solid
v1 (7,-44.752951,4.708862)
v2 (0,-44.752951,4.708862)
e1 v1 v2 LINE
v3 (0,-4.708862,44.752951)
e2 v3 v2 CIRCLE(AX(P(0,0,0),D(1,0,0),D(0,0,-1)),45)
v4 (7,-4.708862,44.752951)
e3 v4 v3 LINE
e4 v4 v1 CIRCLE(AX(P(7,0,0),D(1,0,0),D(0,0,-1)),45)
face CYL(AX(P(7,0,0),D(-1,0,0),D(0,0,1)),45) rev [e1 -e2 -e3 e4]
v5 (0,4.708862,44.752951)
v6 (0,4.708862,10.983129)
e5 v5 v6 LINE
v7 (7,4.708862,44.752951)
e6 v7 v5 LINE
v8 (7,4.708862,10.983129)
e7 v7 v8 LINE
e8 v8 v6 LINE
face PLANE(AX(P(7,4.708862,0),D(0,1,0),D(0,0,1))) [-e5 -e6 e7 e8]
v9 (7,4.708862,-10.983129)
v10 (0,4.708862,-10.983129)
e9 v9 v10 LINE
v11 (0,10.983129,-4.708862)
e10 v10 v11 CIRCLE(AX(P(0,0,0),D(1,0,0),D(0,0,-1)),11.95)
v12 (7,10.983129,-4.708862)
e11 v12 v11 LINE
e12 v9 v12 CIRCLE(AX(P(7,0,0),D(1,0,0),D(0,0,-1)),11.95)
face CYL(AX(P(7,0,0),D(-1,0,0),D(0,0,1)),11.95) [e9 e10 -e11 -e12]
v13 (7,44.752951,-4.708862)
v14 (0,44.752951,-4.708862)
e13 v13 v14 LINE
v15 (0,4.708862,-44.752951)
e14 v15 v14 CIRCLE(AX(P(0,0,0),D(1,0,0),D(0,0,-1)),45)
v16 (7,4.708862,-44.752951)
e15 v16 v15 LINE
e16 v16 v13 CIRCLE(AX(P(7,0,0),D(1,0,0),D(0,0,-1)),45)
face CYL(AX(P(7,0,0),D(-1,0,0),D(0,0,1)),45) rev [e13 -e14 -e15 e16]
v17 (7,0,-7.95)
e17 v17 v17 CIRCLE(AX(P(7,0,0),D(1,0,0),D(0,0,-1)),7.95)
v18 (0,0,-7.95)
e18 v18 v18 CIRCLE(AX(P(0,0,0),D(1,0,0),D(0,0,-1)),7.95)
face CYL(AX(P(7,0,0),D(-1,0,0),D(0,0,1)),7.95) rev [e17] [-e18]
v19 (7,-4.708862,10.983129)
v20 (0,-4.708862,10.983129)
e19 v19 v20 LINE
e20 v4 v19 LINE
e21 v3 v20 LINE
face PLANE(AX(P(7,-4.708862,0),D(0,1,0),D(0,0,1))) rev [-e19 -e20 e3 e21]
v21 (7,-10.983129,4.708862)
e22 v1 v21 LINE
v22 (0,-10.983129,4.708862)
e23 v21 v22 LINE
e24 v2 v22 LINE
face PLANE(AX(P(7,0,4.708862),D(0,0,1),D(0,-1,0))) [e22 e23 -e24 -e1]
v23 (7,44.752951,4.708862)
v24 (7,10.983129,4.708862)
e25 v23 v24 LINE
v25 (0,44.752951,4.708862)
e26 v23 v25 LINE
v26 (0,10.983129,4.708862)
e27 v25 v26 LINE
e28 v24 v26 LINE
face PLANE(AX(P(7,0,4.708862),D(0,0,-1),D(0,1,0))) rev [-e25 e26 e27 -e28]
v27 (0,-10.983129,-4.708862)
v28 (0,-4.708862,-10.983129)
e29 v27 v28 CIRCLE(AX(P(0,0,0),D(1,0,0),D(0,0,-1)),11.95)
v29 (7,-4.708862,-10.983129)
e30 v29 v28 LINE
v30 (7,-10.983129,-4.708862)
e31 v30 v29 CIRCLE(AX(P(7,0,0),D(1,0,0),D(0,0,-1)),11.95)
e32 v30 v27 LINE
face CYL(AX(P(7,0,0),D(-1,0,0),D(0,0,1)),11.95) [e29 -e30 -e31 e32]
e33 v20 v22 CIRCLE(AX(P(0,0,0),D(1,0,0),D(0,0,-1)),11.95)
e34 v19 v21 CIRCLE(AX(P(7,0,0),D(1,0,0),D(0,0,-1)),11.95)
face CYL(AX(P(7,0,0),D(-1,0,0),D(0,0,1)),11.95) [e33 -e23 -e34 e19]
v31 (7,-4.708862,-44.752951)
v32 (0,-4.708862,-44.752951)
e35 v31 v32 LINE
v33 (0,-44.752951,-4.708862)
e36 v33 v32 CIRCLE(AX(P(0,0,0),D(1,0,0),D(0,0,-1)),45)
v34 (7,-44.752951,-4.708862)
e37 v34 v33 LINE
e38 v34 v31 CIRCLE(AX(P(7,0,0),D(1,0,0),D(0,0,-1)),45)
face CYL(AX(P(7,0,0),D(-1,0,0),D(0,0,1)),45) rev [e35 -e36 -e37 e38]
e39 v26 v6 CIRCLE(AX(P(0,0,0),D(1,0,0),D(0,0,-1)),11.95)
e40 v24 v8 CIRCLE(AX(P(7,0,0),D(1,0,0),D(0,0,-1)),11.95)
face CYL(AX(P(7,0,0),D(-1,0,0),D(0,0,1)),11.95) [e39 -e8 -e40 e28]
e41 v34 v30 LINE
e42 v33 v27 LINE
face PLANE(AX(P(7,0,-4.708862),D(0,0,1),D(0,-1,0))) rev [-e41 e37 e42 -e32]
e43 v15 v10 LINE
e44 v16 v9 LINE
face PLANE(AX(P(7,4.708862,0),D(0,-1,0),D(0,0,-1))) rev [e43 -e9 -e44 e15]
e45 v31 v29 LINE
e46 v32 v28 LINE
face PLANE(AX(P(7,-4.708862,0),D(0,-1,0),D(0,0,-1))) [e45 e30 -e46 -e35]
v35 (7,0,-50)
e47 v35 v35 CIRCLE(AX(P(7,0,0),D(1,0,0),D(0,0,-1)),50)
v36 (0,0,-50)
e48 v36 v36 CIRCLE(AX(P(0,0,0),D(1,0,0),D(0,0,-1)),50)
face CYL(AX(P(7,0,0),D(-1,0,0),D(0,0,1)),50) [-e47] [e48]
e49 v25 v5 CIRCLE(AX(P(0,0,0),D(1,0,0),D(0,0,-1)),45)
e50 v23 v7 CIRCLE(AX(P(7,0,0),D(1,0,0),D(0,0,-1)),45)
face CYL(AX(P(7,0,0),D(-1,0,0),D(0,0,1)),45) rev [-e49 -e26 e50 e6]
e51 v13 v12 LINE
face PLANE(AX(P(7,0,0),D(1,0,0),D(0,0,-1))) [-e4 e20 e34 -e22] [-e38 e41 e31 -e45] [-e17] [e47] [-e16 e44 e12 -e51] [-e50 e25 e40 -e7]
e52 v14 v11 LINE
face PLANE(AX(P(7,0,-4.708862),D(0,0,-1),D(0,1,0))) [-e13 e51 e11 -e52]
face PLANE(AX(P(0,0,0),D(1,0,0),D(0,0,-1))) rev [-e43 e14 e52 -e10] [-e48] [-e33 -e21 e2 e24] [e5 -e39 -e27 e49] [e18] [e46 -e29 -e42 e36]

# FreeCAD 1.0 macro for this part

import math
import FreeCAD as App
import Part
import Sketcher

V = App.Vector

doc = App.newDocument("Part")
body = doc.addObject("PartDesign::Body", "Body")

# Sketch on YZ plane
sketch1 = doc.addObject("Sketcher::SketchObject", "Sketch")
body.addObject(sketch1)
sketch1.AttachmentSupport = (doc.YZ_Plane, [""])
sketch1.MapMode = "FlatFace"
sketch1.addGeometry(Part.Circle(V(0, 0, 0), V(0, 0, 1), 50), False)
sketch1.addGeometry(Part.ArcOfCircle(Part.Circle(V(0, 0, 0), V(0, 0, 1), 11.9), math.radians(113), math.radians(157)), False)
sketch1.addGeometry(Part.LineSegment(V(-11, 4.7, 0), V(-44.8, 4.7, 0)), False)
sketch1.addGeometry(Part.ArcOfCircle(Part.Circle(V(0, 0, 0), V(0, 0, 1), 45), math.radians(96), math.radians(174)), False)
sketch1.addGeometry(Part.LineSegment(V(-4.7, 44.8, 0), V(-4.7, 11, 0)), False)
sketch1.addGeometry(Part.ArcOfCircle(Part.Circle(V(0, 0, 0), V(0, 0, 1), 11.9), math.radians(-157), math.radians(-113)), False)
sketch1.addGeometry(Part.LineSegment(V(-4.7, -11, 0), V(-4.7, -44.8, 0)), False)
sketch1.addGeometry(Part.ArcOfCircle(Part.Circle(V(0, 0, 0), V(0, 0, 1), 45), math.radians(-174), math.radians(-96)), False)
sketch1.addGeometry(Part.LineSegment(V(-44.8, -4.7, 0), V(-11, -4.7, 0)), False)
sketch1.addGeometry(Part.LineSegment(V(4.7, 11, 0), V(4.7, 44.8, 0)), False)
sketch1.addGeometry(Part.ArcOfCircle(Part.Circle(V(0, 0, 0), V(0, 0, 1), 45), math.radians(6), math.radians(84)), False)
sketch1.addGeometry(Part.LineSegment(V(44.8, 4.7, 0), V(11, 4.7, 0)), False)
sketch1.addGeometry(Part.ArcOfCircle(Part.Circle(V(0, 0, 0), V(0, 0, 1), 11.9), math.radians(23), math.radians(67)), False)
sketch1.addGeometry(Part.ArcOfCircle(Part.Circle(V(0, 0, 0), V(0, 0, 1), 7.9), math.radians(12), math.radians(24)), False)
sketch1.addGeometry(Part.ArcOfCircle(Part.Circle(V(0, 0, 0), V(0, 0, 1), 8), math.radians(0), math.radians(12)), False)
sketch1.addGeometry(Part.ArcOfCircle(Part.Circle(V(0, 0, 0), V(0, 0, 1), 8), math.radians(-12), math.radians(0)), False)
sketch1.addGeometry(Part.ArcOfCircle(Part.Circle(V(0, 0, 0), V(0, 0, 1), 7.9), math.radians(-24), math.radians(-12)), False)
sketch1.addGeometry(Part.ArcOfCircle(Part.Circle(V(0, 0, 0), V(0, 0, 1), 7.9), math.radians(-36), math.radians(-24)), False)
sketch1.addGeometry(Part.ArcOfCircle(Part.Circle(V(0, 0, 0), V(0, 0, 1), 7.9), math.radians(-48), math.radians(-36)), False)
sketch1.addGeometry(Part.ArcOfCircle(Part.Circle(V(0, 0, 0), V(0, 0, 1), 8), math.radians(-60), math.radians(-48)), False)
sketch1.addGeometry(Part.ArcOfCircle(Part.Circle(V(0, 0, 0), V(0, 0, 1), 8), math.radians(-72), math.radians(-60)), False)
sketch1.addGeometry(Part.ArcOfCircle(Part.Circle(V(0, 0, 0), V(0, 0, 1), 7.9), math.radians(-84), math.radians(-72)), False)
sketch1.addGeometry(Part.ArcOfCircle(Part.Circle(V(0, 0, 0), V(0, 0, 1), 8), math.radians(-90), math.radians(-84)), False)
sketch1.addGeometry(Part.ArcOfCircle(Part.Circle(V(0, 0, 0), V(0, 0, 1), 8), math.radians(-96), math.radians(-90)), False)
sketch1.addGeometry(Part.ArcOfCircle(Part.Circle(V(0, 0, 0), V(0, 0, 1), 7.9), math.radians(-108), math.radians(-96)), False)
sketch1.addGeometry(Part.ArcOfCircle(Part.Circle(V(0, 0, 0), V(0, 0, 1), 8), math.radians(-120), math.radians(-108)), False)
sketch1.addGeometry(Part.ArcOfCircle(Part.Circle(V(0, 0, 0), V(0, 0, 1), 8), math.radians(-132), math.radians(-120)), False)
sketch1.addGeometry(Part.ArcOfCircle(Part.Circle(V(0, 0, 0), V(0, 0, 1), 7.9), math.radians(-144), math.radians(-132)), False)
sketch1.addGeometry(Part.ArcOfCircle(Part.Circle(V(0, 0, 0), V(0, 0, 1), 7.9), math.radians(-156), math.radians(-144)), False)
sketch1.addGeometry(Part.ArcOfCircle(Part.Circle(V(0, 0, 0), V(0, 0, 1), 7.9), math.radians(-168), math.radians(-156)), False)
sketch1.addGeometry(Part.ArcOfCircle(Part.Circle(V(0, 0, 0), V(0, 0, 1), 8), math.radians(-180), math.radians(-168)), False)
sketch1.addGeometry(Part.ArcOfCircle(Part.Circle(V(0, 0, 0), V(0, 0, 1), 8), math.radians(168), math.radians(180)), False)
sketch1.addGeometry(Part.ArcOfCircle(Part.Circle(V(0, 0, 0), V(0, 0, 1), 7.9), math.radians(156), math.radians(168)), False)
sketch1.addGeometry(Part.ArcOfCircle(Part.Circle(V(0, 0, 0), V(0, 0, 1), 7.9), math.radians(144), math.radians(156)), False)
sketch1.addGeometry(Part.ArcOfCircle(Part.Circle(V(0, 0, 0), V(0, 0, 1), 7.9), math.radians(132), math.radians(144)), False)
sketch1.addGeometry(Part.ArcOfCircle(Part.Circle(V(0, 0, 0), V(0, 0, 1), 8), math.radians(120), math.radians(132)), False)
sketch1.addGeometry(Part.ArcOfCircle(Part.Circle(V(0, 0, 0), V(0, 0, 1), 8), math.radians(108), math.radians(120)), False)
sketch1.addGeometry(Part.ArcOfCircle(Part.Circle(V(0, 0, 0), V(0, 0, 1), 7.9), math.radians(96), math.radians(108)), False)
sketch1.addGeometry(Part.ArcOfCircle(Part.Circle(V(0, 0, 0), V(0, 0, 1), 7.9), math.radians(84), math.radians(96)), False)
sketch1.addGeometry(Part.ArcOfCircle(Part.Circle(V(0, 0, 0), V(0, 0, 1), 7.9), math.radians(72), math.radians(84)), False)
sketch1.addGeometry(Part.ArcOfCircle(Part.Circle(V(0, 0, 0), V(0, 0, 1), 8), math.radians(60), math.radians(72)), False)
sketch1.addGeometry(Part.ArcOfCircle(Part.Circle(V(0, 0, 0), V(0, 0, 1), 8), math.radians(48), math.radians(60)), False)
sketch1.addGeometry(Part.ArcOfCircle(Part.Circle(V(0, 0, 0), V(0, 0, 1), 7.9), math.radians(36), math.radians(48)), False)
sketch1.addGeometry(Part.ArcOfCircle(Part.Circle(V(0, 0, 0), V(0, 0, 1), 7.9), math.radians(24), math.radians(36)), False)
sketch1.addGeometry(Part.ArcOfCircle(Part.Circle(V(0, 0, 0), V(0, 0, 1), 11.9), math.radians(-67), math.radians(-23)), False)
sketch1.addGeometry(Part.LineSegment(V(11, -4.7, 0), V(44.8, -4.7, 0)), False)
sketch1.addGeometry(Part.ArcOfCircle(Part.Circle(V(0, 0, 0), V(0, 0, 1), 45), math.radians(-84), math.radians(-6)), False)
sketch1.addGeometry(Part.LineSegment(V(4.7, -44.8, 0), V(4.7, -11, 0)), False)
sketch1.addConstraint(Sketcher.Constraint("Coincident", 1, 2, 2, 1))
sketch1.addConstraint(Sketcher.Constraint("Coincident", 2, 2, 3, 2))
sketch1.addConstraint(Sketcher.Constraint("Coincident", 3, 1, 4, 1))
sketch1.addConstraint(Sketcher.Constraint("Coincident", 4, 2, 1, 1))
sketch1.addConstraint(Sketcher.Constraint("Coincident", 5, 2, 6, 1))
sketch1.addConstraint(Sketcher.Constraint("Coincident", 6, 2, 7, 2))
sketch1.addConstraint(Sketcher.Constraint("Coincident", 7, 1, 8, 1))
sketch1.addConstraint(Sketcher.Constraint("Coincident", 8, 2, 5, 1))
sketch1.addConstraint(Sketcher.Constraint("Coincident", 9, 2, 10, 2))
sketch1.addConstraint(Sketcher.Constraint("Coincident", 10, 1, 11, 1))
sketch1.addConstraint(Sketcher.Constraint("Coincident", 11, 2, 12, 1))
sketch1.addConstraint(Sketcher.Constraint("Coincident", 12, 2, 9, 1))
sketch1.addConstraint(Sketcher.Constraint("Tangent", 13, 1, 14, 2))
sketch1.addConstraint(Sketcher.Constraint("Tangent", 14, 1, 15, 2))
sketch1.addConstraint(Sketcher.Constraint("Tangent", 15, 1, 16, 2))
sketch1.addConstraint(Sketcher.Constraint("Tangent", 16, 1, 17, 2))
sketch1.addConstraint(Sketcher.Constraint("Tangent", 17, 1, 18, 2))
sketch1.addConstraint(Sketcher.Constraint("Tangent", 18, 1, 19, 2))
sketch1.addConstraint(Sketcher.Constraint("Tangent", 19, 1, 20, 2))
sketch1.addConstraint(Sketcher.Constraint("Tangent", 20, 1, 21, 2))
sketch1.addConstraint(Sketcher.Constraint("Tangent", 21, 1, 22, 2))
sketch1.addConstraint(Sketcher.Constraint("Tangent", 22, 1, 23, 2))
sketch1.addConstraint(Sketcher.Constraint("Tangent", 23, 1, 24, 2))
sketch1.addConstraint(Sketcher.Constraint("Tangent", 24, 1, 25, 2))
sketch1.addConstraint(Sketcher.Constraint("Tangent", 25, 1, 26, 2))
sketch1.addConstraint(Sketcher.Constraint("Tangent", 26, 1, 27, 2))
sketch1.addConstraint(Sketcher.Constraint("Tangent", 27, 1, 28, 2))
sketch1.addConstraint(Sketcher.Constraint("Tangent", 28, 1, 29, 2))
sketch1.addConstraint(Sketcher.Constraint("Tangent", 29, 1, 30, 2))
sketch1.addConstraint(Sketcher.Constraint("Tangent", 30, 1, 31, 2))
sketch1.addConstraint(Sketcher.Constraint("Tangent", 31, 1, 32, 2))
sketch1.addConstraint(Sketcher.Constraint("Tangent", 32, 1, 33, 2))
sketch1.addConstraint(Sketcher.Constraint("Tangent", 33, 1, 34, 2))
sketch1.addConstraint(Sketcher.Constraint("Tangent", 34, 1, 35, 2))
sketch1.addConstraint(Sketcher.Constraint("Tangent", 35, 1, 36, 2))
sketch1.addConstraint(Sketcher.Constraint("Tangent", 36, 1, 37, 2))
sketch1.addConstraint(Sketcher.Constraint("Tangent", 37, 1, 38, 2))
sketch1.addConstraint(Sketcher.Constraint("Tangent", 38, 1, 39, 2))
sketch1.addConstraint(Sketcher.Constraint("Tangent", 39, 1, 40, 2))
sketch1.addConstraint(Sketcher.Constraint("Tangent", 40, 1, 41, 2))
sketch1.addConstraint(Sketcher.Constraint("Tangent", 41, 1, 42, 2))
sketch1.addConstraint(Sketcher.Constraint("Tangent", 42, 1, 43, 2))
sketch1.addConstraint(Sketcher.Constraint("Tangent", 43, 1, 13, 2))
sketch1.addConstraint(Sketcher.Constraint("Coincident", 44, 2, 45, 1))
sketch1.addConstraint(Sketcher.Constraint("Coincident", 45, 2, 46, 2))
sketch1.addConstraint(Sketcher.Constraint("Coincident", 46, 1, 47, 1))
sketch1.addConstraint(Sketcher.Constraint("Coincident", 47, 2, 44, 1))
sketch1.addConstraint(Sketcher.Constraint("Horizontal", 2))
sketch1.addConstraint(Sketcher.Constraint("Vertical", 4))
sketch1.addConstraint(Sketcher.Constraint("Vertical", 6))
sketch1.addConstraint(Sketcher.Constraint("Horizontal", 8))
sketch1.addConstraint(Sketcher.Constraint("Vertical", 9))
sketch1.addConstraint(Sketcher.Constraint("Horizontal", 11))
sketch1.addConstraint(Sketcher.Constraint("Horizontal", 45))
sketch1.addConstraint(Sketcher.Constraint("Vertical", 47))
sketch1.addConstraint(Sketcher.Constraint("Coincident", 0, 3, -1, 1))
sketch1.addConstraint(Sketcher.Constraint("Coincident", 1, 3, -1, 1))
sketch1.addConstraint(Sketcher.Constraint("Coincident", 3, 3, -1, 1))
sketch1.addConstraint(Sketcher.Constraint("Coincident", 5, 3, -1, 1))
sketch1.addConstraint(Sketcher.Constraint("Coincident", 7, 3, -1, 1))
sketch1.addConstraint(Sketcher.Constraint("Coincident", 10, 3, -1, 1))
sketch1.addConstraint(Sketcher.Constraint("Coincident", 12, 3, -1, 1))
sketch1.addConstraint(Sketcher.Constraint("Coincident", 13, 3, -1, 1))
sketch1.addConstraint(Sketcher.Constraint("Coincident", 15, 3, -1, 1))
sketch1.addConstraint(Sketcher.Constraint("Coincident", 17, 3, -1, 1))
sketch1.addConstraint(Sketcher.Constraint("Coincident", 19, 3, -1, 1))
sketch1.addConstraint(Sketcher.Constraint("Coincident", 21, 3, -1, 1))
sketch1.addConstraint(Sketcher.Constraint("Coincident", 23, 3, -1, 1))
sketch1.addConstraint(Sketcher.Constraint("Coincident", 25, 3, -1, 1))
sketch1.addConstraint(Sketcher.Constraint("Coincident", 27, 3, -1, 1))
sketch1.addConstraint(Sketcher.Constraint("Coincident", 29, 3, -1, 1))
sketch1.addConstraint(Sketcher.Constraint("Coincident", 31, 3, -1, 1))
sketch1.addConstraint(Sketcher.Constraint("Coincident", 33, 3, -1, 1))
sketch1.addConstraint(Sketcher.Constraint("Coincident", 35, 3, -1, 1))
sketch1.addConstraint(Sketcher.Constraint("Coincident", 37, 3, -1, 1))
sketch1.addConstraint(Sketcher.Constraint("Coincident", 39, 3, -1, 1))
sketch1.addConstraint(Sketcher.Constraint("Coincident", 41, 3, -1, 1))
sketch1.addConstraint(Sketcher.Constraint("Coincident", 44, 3, -1, 1))
sketch1.addConstraint(Sketcher.Constraint("Coincident", 46, 3, -1, 1))
sketch1.addConstraint(Sketcher.Constraint("Equal", 1, 5))
sketch1.addConstraint(Sketcher.Constraint("Equal", 3, 7))
sketch1.addConstraint(Sketcher.Constraint("Equal", 7, 10))
sketch1.addConstraint(Sketcher.Constraint("Equal", 5, 12))
sketch1.addConstraint(Sketcher.Constraint("Equal", 12, 44))
sketch1.addConstraint(Sketcher.Constraint("Equal", 10, 46))
sketch1.addConstraint(Sketcher.Constraint("PointOnObject", 14, 1, -1))
sketch1.addConstraint(Sketcher.Constraint("PointOnObject", 22, 1, -2))
sketch1.addConstraint(Sketcher.Constraint("PointOnObject", 30, 1, -1))
sketch1.addConstraint(Sketcher.Constraint("Horizontal", 3, 1, 9, 2))
sketch1.addConstraint(Sketcher.Constraint("Horizontal", 2, 2, 10, 1))
sketch1.addConstraint(Sketcher.Constraint("Horizontal", 21, 1, 23, 1))
sketch1.addConstraint(Sketcher.Constraint("Horizontal", 20, 1, 24, 1))
sketch1.addConstraint(Sketcher.Constraint("Horizontal", 19, 1, 25, 1))
sketch1.addConstraint(Sketcher.Constraint("Horizontal", 18, 1, 26, 1))
sketch1.addConstraint(Sketcher.Constraint("Horizontal", 17, 1, 27, 1))
sketch1.addConstraint(Sketcher.Constraint("Horizontal", 16, 1, 28, 1))
sketch1.addConstraint(Sketcher.Constraint("Horizontal", 15, 1, 29, 1))
sketch1.addConstraint(Sketcher.Constraint("Horizontal", 13, 1, 31, 1))
sketch1.addConstraint(Sketcher.Constraint("Horizontal", 37, 1, 38, 1))
sketch1.addConstraint(Sketcher.Constraint("Horizontal", 36, 1, 39, 1))
sketch1.addConstraint(Sketcher.Constraint("Horizontal", 35, 1, 40, 1))
sketch1.addConstraint(Sketcher.Constraint("Horizontal", 34, 1, 41, 1))
sketch1.addConstraint(Sketcher.Constraint("Horizontal", 33, 1, 42, 1))
sketch1.addConstraint(Sketcher.Constraint("Horizontal", 32, 1, 43, 1))
sketch1.addConstraint(Sketcher.Constraint("Horizontal", 8, 2, 44, 2))
sketch1.addConstraint(Sketcher.Constraint("Horizontal", 6, 2, 46, 1))
sketch1.addConstraint(Sketcher.Constraint("Vertical", 4, 2, 5, 2))
sketch1.addConstraint(Sketcher.Constraint("Vertical", 2, 2, 7, 1))
sketch1.addConstraint(Sketcher.Constraint("Vertical", 13, 1, 15, 1))
sketch1.addConstraint(Sketcher.Constraint("Vertical", 28, 1, 32, 1))
sketch1.addConstraint(Sketcher.Constraint("Vertical", 27, 1, 33, 1))
sketch1.addConstraint(Sketcher.Constraint("Vertical", 26, 1, 34, 1))
sketch1.addConstraint(Sketcher.Constraint("Vertical", 25, 1, 35, 1))
sketch1.addConstraint(Sketcher.Constraint("Vertical", 24, 1, 36, 1))
sketch1.addConstraint(Sketcher.Constraint("Vertical", 23, 1, 37, 1))
sketch1.addConstraint(Sketcher.Constraint("Equal", 45, 4))
sketch1.addConstraint(Sketcher.Constraint("Diameter", 0, 100.0))
sketch1.addConstraint(Sketcher.Constraint("Radius", 3, 45.0))
sketch1.addConstraint(Sketcher.Constraint("Radius", 1, 11.95))
sketch1.addConstraint(Sketcher.Constraint("Radius", 13, 7.95))
sketch1.addConstraint(Sketcher.Constraint("DistanceY", 18, 1, -1, 1, 5.908001))
sketch1.addConstraint(Sketcher.Constraint("DistanceX", -1, 1, 19, 1, 3.975))
sketch1.addConstraint(Sketcher.Constraint("DistanceX", -1, 1, 21, 1, 0.831001))
sketch1.addConstraint(Sketcher.Constraint("DistanceY", 20, 1, -1, 1, 7.560899))
sketch1.addConstraint(Sketcher.Constraint("DistanceX", 2, 2, 2, 1, 33.769822))
sketch1.addConstraint(Sketcher.Constraint("DistanceX", -1, 1, 13, 1, 7.776273))
sketch1.addConstraint(Sketcher.Constraint("DistanceX", -1, 1, 16, 1, 7.262686))
sketch1.addConstraint(Sketcher.Constraint("DistanceX", -1, 1, 17, 1, 6.431685))
pad1 = doc.addObject("PartDesign::Pad", "Pad")
body.addObject(pad1)
pad1.Profile = sketch1
pad1.Length = 7

doc.recompute()
